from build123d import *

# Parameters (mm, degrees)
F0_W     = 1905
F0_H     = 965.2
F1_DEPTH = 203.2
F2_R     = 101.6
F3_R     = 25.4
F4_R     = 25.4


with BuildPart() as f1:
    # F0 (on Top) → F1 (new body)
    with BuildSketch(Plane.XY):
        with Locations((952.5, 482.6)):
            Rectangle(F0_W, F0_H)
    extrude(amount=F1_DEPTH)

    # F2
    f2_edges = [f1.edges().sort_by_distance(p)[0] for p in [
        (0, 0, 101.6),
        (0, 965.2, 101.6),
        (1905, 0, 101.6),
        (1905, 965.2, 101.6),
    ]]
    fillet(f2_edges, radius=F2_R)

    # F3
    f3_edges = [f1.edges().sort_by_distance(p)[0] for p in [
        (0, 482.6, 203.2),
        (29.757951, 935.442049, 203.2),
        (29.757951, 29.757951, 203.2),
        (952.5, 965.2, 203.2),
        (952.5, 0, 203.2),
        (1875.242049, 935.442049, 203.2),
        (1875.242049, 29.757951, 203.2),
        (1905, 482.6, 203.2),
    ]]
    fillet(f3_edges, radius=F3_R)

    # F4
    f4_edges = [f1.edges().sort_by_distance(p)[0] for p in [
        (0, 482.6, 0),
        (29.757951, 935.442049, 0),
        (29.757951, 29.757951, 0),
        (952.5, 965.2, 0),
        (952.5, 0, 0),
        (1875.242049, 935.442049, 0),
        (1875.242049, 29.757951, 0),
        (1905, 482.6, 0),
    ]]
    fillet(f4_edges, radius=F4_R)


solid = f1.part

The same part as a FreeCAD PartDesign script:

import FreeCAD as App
import Part
import Sketcher

V = App.Vector
Q = App.Units.Quantity


def edges_at(feature, points):
    """Names of the edges that pass closest to the given points."""
    edges = feature.Shape.Edges
    near = lambda p: min(range(len(edges)), key=lambda i: edges[i].distToShape(Part.Vertex(*p))[0])
    return sorted({f"Edge{near(p) + 1}" for p in points})

doc = App.newDocument("Part")
params = doc.addObject("Spreadsheet::Sheet", "Params")
for row, (alias, value) in enumerate([
    ("sketch1_width", "75 in"),
    ("sketch1_height", "38 in"),
    ("pad1_length", "8 in"),
    ("fillet_radius", "4 in"),
    ("fillet2_radius", "1 in"),
    ("fillet3_radius", "1 in"),
], start=1):
    params.set(f"A{row}", alias)
    params.set(f"B{row}", "=" + value)
    params.setAlias(f"B{row}", alias)

body = doc.addObject("PartDesign::Body", "Body")

sketch1 = doc.addObject("Sketcher::SketchObject", "Sketch")
body.addObject(sketch1)
sketch1.AttachmentSupport = (doc.XY_Plane, [""])
sketch1.MapMode = "FlatFace"
sketch1.addGeometry([
    Part.LineSegment(V(0, 965, 0), V(0, 0, 0)),
    Part.LineSegment(V(0, 0, 0), V(1905, 0, 0)),
    Part.LineSegment(V(1905, 0, 0), V(1905, 965, 0)),
    Part.LineSegment(V(1905, 965, 0), V(0, 965, 0)),
], False)
sketch1.addConstraint([
    Sketcher.Constraint("Coincident", 0, 2, 1, 1),
    Sketcher.Constraint("Coincident", 1, 2, 2, 1),
    Sketcher.Constraint("Coincident", 2, 2, 3, 1),
    Sketcher.Constraint("Coincident", 3, 2, 0, 1),
    Sketcher.Constraint("Vertical", 0),
    Sketcher.Constraint("Horizontal", 1),
    Sketcher.Constraint("Vertical", 2),
    Sketcher.Constraint("Horizontal", 3),
    Sketcher.Constraint("Coincident", 0, 2, -1, 1),
    Sketcher.Constraint("DistanceX", 1, 1, 1, 2, Q("75 in")),
    Sketcher.Constraint("DistanceY", 0, 2, 0, 1, Q("38 in")),
])
sketch1.setExpression("Constraints[9]", "Params.sketch1_width")
sketch1.setExpression("Constraints[10]", "Params.sketch1_height")
pad1 = doc.addObject("PartDesign::Pad", "Pad")
body.addObject(pad1)
pad1.Profile = sketch1
pad1.setExpression("Length", "Params.pad1_length")
doc.recompute()

fillet = doc.addObject("PartDesign::Fillet", "Fillet")
body.addObject(fillet)
fillet.Base = (pad1, edges_at(pad1, [
    (0, 0, 101.6),
    (0, 965.2, 101.6),
    (1905, 0, 101.6),
    (1905, 965.2, 101.6),
]))
fillet.setExpression("Radius", "Params.fillet_radius")
doc.recompute()

fillet2 = doc.addObject("PartDesign::Fillet", "Fillet001")
body.addObject(fillet2)
fillet2.Base = (fillet, edges_at(fillet, [
    (0, 482.6, 203.2),
    (29.758, 935.442, 203.2),
    (29.758, 29.758, 203.2),
    (952.5, 965.2, 203.2),
    (952.5, 0, 203.2),
    (1875.242, 935.442, 203.2),
    (1875.242, 29.758, 203.2),
    (1905, 482.6, 203.2),
]))
fillet2.setExpression("Radius", "Params.fillet2_radius")
doc.recompute()

fillet3 = doc.addObject("PartDesign::Fillet", "Fillet002")
body.addObject(fillet3)
fillet3.Base = (fillet2, edges_at(fillet2, [
    (0, 482.6, 0),
    (29.758, 935.442, 0),
    (29.758, 29.758, 0),
    (952.5, 965.2, 0),
    (952.5, 0, 0),
    (1875.242, 935.442, 0),
    (1875.242, 29.758, 0),
    (1905, 482.6, 0),
]))
fillet3.setExpression("Radius", "Params.fillet3_radius")

doc.recompute()
